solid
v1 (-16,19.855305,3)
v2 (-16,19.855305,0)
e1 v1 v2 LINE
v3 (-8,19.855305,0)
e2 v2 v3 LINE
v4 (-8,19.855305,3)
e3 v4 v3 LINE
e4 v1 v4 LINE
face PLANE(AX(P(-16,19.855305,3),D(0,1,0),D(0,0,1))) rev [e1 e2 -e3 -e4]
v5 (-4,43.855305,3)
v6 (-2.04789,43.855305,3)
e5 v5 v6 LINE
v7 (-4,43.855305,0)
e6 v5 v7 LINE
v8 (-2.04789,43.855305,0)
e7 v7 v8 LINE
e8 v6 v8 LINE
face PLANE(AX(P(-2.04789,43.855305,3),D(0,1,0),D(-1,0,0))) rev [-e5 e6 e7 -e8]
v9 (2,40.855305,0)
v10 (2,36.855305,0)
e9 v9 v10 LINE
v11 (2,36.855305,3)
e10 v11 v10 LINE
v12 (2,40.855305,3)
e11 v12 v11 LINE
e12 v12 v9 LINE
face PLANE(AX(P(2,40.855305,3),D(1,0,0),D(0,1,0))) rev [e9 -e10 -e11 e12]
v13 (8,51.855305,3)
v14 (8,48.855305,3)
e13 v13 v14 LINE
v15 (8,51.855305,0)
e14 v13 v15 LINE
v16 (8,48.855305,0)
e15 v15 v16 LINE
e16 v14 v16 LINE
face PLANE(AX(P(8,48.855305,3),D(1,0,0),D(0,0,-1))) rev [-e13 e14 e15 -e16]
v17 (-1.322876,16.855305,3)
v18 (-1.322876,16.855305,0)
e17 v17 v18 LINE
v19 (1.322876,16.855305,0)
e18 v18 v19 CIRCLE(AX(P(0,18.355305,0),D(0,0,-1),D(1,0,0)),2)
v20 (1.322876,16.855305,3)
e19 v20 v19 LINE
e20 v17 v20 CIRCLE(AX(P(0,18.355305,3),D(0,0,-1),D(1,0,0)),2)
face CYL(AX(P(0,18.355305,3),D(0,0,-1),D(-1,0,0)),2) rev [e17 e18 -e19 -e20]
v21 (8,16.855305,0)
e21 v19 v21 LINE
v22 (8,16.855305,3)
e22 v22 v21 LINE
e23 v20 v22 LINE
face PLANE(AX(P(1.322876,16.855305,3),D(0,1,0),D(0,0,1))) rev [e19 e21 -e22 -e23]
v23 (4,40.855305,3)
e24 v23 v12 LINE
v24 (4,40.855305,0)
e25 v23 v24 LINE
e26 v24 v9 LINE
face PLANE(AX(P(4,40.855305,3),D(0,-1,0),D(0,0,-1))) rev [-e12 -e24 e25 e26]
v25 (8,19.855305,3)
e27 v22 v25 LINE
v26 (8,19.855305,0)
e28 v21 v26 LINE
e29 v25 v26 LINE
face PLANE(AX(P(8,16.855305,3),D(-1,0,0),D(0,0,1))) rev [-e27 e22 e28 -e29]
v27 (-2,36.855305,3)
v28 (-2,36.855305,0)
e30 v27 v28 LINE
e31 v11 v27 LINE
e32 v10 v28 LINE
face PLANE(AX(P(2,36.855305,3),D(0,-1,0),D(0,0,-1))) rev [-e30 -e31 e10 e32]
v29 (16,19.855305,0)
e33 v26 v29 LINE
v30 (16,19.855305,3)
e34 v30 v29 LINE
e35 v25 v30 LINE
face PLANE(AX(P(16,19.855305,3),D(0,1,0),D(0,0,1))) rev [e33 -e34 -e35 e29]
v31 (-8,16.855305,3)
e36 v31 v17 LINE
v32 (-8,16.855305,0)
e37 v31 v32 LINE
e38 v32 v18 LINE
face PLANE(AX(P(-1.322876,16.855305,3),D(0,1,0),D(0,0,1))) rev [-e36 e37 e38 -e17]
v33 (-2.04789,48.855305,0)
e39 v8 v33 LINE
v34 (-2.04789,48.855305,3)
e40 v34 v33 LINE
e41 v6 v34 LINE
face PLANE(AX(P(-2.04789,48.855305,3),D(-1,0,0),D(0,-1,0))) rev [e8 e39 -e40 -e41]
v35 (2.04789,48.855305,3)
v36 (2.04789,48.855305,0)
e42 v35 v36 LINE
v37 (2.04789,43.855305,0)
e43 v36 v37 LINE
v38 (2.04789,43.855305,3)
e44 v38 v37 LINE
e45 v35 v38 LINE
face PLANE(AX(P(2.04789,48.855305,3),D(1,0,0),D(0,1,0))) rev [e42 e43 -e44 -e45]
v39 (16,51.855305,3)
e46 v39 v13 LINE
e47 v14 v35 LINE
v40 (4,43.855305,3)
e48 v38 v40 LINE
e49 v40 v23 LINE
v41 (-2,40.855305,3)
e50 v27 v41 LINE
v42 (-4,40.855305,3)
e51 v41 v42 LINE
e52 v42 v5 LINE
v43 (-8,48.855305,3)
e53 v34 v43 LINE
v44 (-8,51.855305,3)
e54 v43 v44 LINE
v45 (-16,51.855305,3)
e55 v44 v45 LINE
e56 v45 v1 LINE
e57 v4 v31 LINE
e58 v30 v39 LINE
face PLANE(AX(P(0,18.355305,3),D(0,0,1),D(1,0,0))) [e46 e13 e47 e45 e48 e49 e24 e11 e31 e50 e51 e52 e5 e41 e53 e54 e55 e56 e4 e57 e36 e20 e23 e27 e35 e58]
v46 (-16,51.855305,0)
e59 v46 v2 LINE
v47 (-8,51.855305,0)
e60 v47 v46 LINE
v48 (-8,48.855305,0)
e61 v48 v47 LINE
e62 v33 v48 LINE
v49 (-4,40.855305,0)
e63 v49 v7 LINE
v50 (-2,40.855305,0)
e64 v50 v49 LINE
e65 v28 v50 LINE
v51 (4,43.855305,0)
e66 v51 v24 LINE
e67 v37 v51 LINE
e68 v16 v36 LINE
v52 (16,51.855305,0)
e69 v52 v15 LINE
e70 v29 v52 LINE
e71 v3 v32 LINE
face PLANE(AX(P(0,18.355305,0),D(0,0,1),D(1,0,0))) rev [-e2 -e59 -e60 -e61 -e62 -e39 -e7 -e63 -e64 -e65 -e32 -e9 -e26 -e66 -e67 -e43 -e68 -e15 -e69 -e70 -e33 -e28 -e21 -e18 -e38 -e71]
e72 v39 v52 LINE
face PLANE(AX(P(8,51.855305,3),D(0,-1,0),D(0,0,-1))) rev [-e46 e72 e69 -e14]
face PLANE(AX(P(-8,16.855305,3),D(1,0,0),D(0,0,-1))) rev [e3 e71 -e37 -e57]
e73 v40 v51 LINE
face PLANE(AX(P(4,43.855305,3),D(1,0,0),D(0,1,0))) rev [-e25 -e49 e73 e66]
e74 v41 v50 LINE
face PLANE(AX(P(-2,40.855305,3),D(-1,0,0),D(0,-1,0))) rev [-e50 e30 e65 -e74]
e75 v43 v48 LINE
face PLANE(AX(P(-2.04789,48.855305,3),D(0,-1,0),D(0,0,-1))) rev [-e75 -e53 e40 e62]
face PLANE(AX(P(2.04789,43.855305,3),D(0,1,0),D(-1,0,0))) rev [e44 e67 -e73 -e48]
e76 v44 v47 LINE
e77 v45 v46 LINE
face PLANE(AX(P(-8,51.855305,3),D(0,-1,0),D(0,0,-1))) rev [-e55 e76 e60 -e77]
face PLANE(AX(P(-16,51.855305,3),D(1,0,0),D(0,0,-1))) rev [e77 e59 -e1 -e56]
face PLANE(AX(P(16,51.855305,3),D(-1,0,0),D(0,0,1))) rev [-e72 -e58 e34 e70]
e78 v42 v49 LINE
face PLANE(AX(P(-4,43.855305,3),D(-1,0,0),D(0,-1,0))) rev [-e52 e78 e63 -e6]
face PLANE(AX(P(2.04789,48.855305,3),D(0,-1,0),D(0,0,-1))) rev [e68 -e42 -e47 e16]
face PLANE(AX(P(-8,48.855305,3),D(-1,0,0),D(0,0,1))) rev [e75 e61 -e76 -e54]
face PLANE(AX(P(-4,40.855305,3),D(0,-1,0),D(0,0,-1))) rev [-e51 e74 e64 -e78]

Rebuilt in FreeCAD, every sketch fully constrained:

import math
import FreeCAD as App
import Part
import Sketcher
from FreeCAD import Vector

doc = App.newDocument("Part")
body = doc.addObject("PartDesign::Body", "Body")

# Sketch on XY plane
sketch1 = body.newObject("Sketcher::SketchObject", "Sketch")
sketch1.AttachmentSupport = (doc.getObject("XY_Plane"), [""])
sketch1.MapMode = "FlatFace"
sketch1.addGeometry([
    Part.LineSegment(Vector(8, 48.9, 0), Vector(2, 48.9, 0)),  # 0
    Part.LineSegment(Vector(2, 48.9, 0), Vector(2, 43.9, 0)),  # 1
    Part.LineSegment(Vector(2, 43.9, 0), Vector(4, 43.9, 0)),  # 2
    Part.LineSegment(Vector(4, 43.9, 0), Vector(4, 40.9, 0)),  # 3
    Part.LineSegment(Vector(4, 40.9, 0), Vector(2, 40.9, 0)),  # 4
    Part.LineSegment(Vector(2, 40.9, 0), Vector(2, 36.9, 0)),  # 5
    Part.LineSegment(Vector(2, 36.9, 0), Vector(-2, 36.9, 0)),  # 6
    Part.LineSegment(Vector(-2, 36.9, 0), Vector(-2, 40.9, 0)),  # 7
    Part.LineSegment(Vector(-2, 40.9, 0), Vector(-4, 40.9, 0)),  # 8
    Part.LineSegment(Vector(-4, 40.9, 0), Vector(-4, 43.9, 0)),  # 9
    Part.LineSegment(Vector(-4, 43.9, 0), Vector(-2, 43.9, 0)),  # 10
    Part.LineSegment(Vector(-2, 43.9, 0), Vector(-2, 48.9, 0)),  # 11
    Part.LineSegment(Vector(-2, 48.9, 0), Vector(-8, 48.9, 0)),  # 12
    Part.LineSegment(Vector(-8, 48.9, 0), Vector(-8, 51.9, 0)),  # 13
    Part.LineSegment(Vector(-8, 51.9, 0), Vector(-16, 51.9, 0)),  # 14
    Part.LineSegment(Vector(-16, 51.9, 0), Vector(-16, 19.9, 0)),  # 15
    Part.LineSegment(Vector(-16, 19.9, 0), Vector(-8, 19.9, 0)),  # 16
    Part.LineSegment(Vector(-8, 19.9, 0), Vector(-8, 16.9, 0)),  # 17
    Part.LineSegment(Vector(-8, 16.9, 0), Vector(-1.3, 16.9, 0)),  # 18
    Part.ArcOfCircle(Part.Circle(Vector(0, 18.4, 0), Vector(0, 0, 1), 2), math.radians(-49), math.radians(229)),  # 19
    Part.LineSegment(Vector(1.3, 16.9, 0), Vector(8, 16.9, 0)),  # 20
    Part.LineSegment(Vector(8, 16.9, 0), Vector(8, 19.9, 0)),  # 21
    Part.LineSegment(Vector(8, 19.9, 0), Vector(16, 19.9, 0)),  # 22
    Part.LineSegment(Vector(16, 19.9, 0), Vector(16, 51.9, 0)),  # 23
    Part.LineSegment(Vector(16, 51.9, 0), Vector(8, 51.9, 0)),  # 24
    Part.LineSegment(Vector(8, 51.9, 0), Vector(8, 48.9, 0)),  # 25
], False)
sketch1.addConstraint([
    Sketcher.Constraint("Coincident", 0, 2, 1, 1),
    Sketcher.Constraint("Coincident", 1, 2, 2, 1),
    Sketcher.Constraint("Coincident", 2, 2, 3, 1),
    Sketcher.Constraint("Coincident", 3, 2, 4, 1),
    Sketcher.Constraint("Coincident", 4, 2, 5, 1),
    Sketcher.Constraint("Coincident", 5, 2, 6, 1),
    Sketcher.Constraint("Coincident", 6, 2, 7, 1),
    Sketcher.Constraint("Coincident", 7, 2, 8, 1),
    Sketcher.Constraint("Coincident", 8, 2, 9, 1),
    Sketcher.Constraint("Coincident", 9, 2, 10, 1),
    Sketcher.Constraint("Coincident", 10, 2, 11, 1),
    Sketcher.Constraint("Coincident", 11, 2, 12, 1),
    Sketcher.Constraint("Coincident", 12, 2, 13, 1),
    Sketcher.Constraint("Coincident", 13, 2, 14, 1),
    Sketcher.Constraint("Coincident", 14, 2, 15, 1),
    Sketcher.Constraint("Coincident", 15, 2, 16, 1),
    Sketcher.Constraint("Coincident", 16, 2, 17, 1),
    Sketcher.Constraint("Coincident", 17, 2, 18, 1),
    Sketcher.Constraint("Coincident", 18, 2, 19, 2),
    Sketcher.Constraint("Coincident", 19, 1, 20, 1),
    Sketcher.Constraint("Coincident", 20, 2, 21, 1),
    Sketcher.Constraint("Coincident", 21, 2, 22, 1),
    Sketcher.Constraint("Coincident", 22, 2, 23, 1),
    Sketcher.Constraint("Coincident", 23, 2, 24, 1),
    Sketcher.Constraint("Coincident", 24, 2, 25, 1),
    Sketcher.Constraint("Coincident", 25, 2, 0, 1),
    Sketcher.Constraint("Horizontal", 0),
    Sketcher.Constraint("Vertical", 1),
    Sketcher.Constraint("Horizontal", 2),
    Sketcher.Constraint("Vertical", 3),
    Sketcher.Constraint("Horizontal", 4),
    Sketcher.Constraint("Vertical", 5),
    Sketcher.Constraint("Horizontal", 6),
    Sketcher.Constraint("Vertical", 7),
    Sketcher.Constraint("Horizontal", 8),
    Sketcher.Constraint("Vertical", 9),
    Sketcher.Constraint("Horizontal", 10),
    Sketcher.Constraint("Vertical", 11),
    Sketcher.Constraint("Horizontal", 12),
    Sketcher.Constraint("Vertical", 13),
    Sketcher.Constraint("Horizontal", 14),
    Sketcher.Constraint("Vertical", 15),
    Sketcher.Constraint("Horizontal", 16),
    Sketcher.Constraint("Vertical", 17),
    Sketcher.Constraint("Horizontal", 18),
    Sketcher.Constraint("Horizontal", 20),
    Sketcher.Constraint("Vertical", 21),
    Sketcher.Constraint("Horizontal", 22),
    Sketcher.Constraint("Vertical", 23),
    Sketcher.Constraint("Horizontal", 24),
    Sketcher.Constraint("Vertical", 25),
    Sketcher.Constraint("Symmetric", 4, 2, 7, 2, -2),
    Sketcher.Constraint("Symmetric", 2, 2, 9, 2, -2),
    Sketcher.Constraint("Symmetric", 0, 2, 11, 2, -2),
    Sketcher.Constraint("Symmetric", 18, 2, 19, 1, -2),
    Sketcher.Constraint("Symmetric", 16, 2, 21, 2, -2),
    Sketcher.Constraint("Symmetric", 14, 2, 23, 2, -2),
    Sketcher.Constraint("Vertical", 13, 2, 16, 2),
    Sketcher.Constraint("Vertical", 21, 2, 24, 2),
    Sketcher.Constraint("Equal", 6, 5),
    Sketcher.Constraint("Equal", 9, 13),
    Sketcher.Constraint("Equal", 13, 17),
    Sketcher.Constraint("Radius", 19, 2.0),
    Sketcher.Constraint("DistanceX", 4, 2, 4, 1, 2.0),
    Sketcher.Constraint("DistanceX", 6, 2, 6, 1, 4.0),
    Sketcher.Constraint("DistanceX", 14, 2, 14, 1, 8.0),
    Sketcher.Constraint("DistanceY", 1, 2, 1, 1, 5.0),
    Sketcher.Constraint("DistanceY", 3, 2, 3, 1, 3.0),
    Sketcher.Constraint("DistanceY", 15, 2, 15, 1, 32.0),
    Sketcher.Constraint("DistanceX", 12, 2, -1, 1, 8.0),
    Sketcher.Constraint("DistanceY", 19, 3, 0, 2, 30.5),
    Sketcher.Constraint("DistanceX", 0, 2, 0, 1, 5.95211),
    Sketcher.Constraint("DistanceY", -1, 1, 19, 3, 18.355305),
])
pad1 = body.newObject("PartDesign::Pad", "Pad")
pad1.Profile = sketch1
pad1.Length = 3

doc.recompute()
